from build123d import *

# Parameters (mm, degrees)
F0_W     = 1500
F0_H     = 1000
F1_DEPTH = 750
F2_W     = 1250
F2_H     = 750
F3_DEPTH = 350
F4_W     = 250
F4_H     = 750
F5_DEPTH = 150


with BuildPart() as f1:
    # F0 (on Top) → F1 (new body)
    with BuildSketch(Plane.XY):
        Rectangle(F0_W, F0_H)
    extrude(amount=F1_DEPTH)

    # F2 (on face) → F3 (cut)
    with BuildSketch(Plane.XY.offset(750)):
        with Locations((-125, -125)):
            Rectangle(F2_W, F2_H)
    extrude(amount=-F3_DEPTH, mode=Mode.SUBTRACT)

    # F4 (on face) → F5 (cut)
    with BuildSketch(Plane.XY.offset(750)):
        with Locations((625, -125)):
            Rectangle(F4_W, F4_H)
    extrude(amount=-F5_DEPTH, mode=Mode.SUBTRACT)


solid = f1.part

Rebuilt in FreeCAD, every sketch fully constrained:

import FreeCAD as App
import Part
import Sketcher
Q = App.Units.Quantity

doc = App.newDocument("Part")
body = doc.addObject("PartDesign::Body", "Body")

# Sketch on XY plane
sketch1 = body.newObject("Sketcher::SketchObject", "Sketch")
sketch1.AttachmentSupport = (doc.getObject("XY_Plane"), [""])
sketch1.MapMode = "FlatFace"
sketch1.addGeometry(Part.LineSegment(App.Vector(-750, 500, 0), App.Vector(-750, -500, 0)), False)
sketch1.addGeometry(Part.LineSegment(App.Vector(-750, -500, 0), App.Vector(750, -500, 0)), False)
sketch1.addGeometry(Part.LineSegment(App.Vector(750, -500, 0), App.Vector(750, 500, 0)), False)
sketch1.addGeometry(Part.LineSegment(App.Vector(750, 500, 0), App.Vector(-750, 500, 0)), False)
sketch1.addConstraint(Sketcher.Constraint("Coincident", 0, 2, 1, 1))
sketch1.addConstraint(Sketcher.Constraint("Coincident", 1, 2, 2, 1))
sketch1.addConstraint(Sketcher.Constraint("Coincident", 2, 2, 3, 1))
sketch1.addConstraint(Sketcher.Constraint("Coincident", 3, 2, 0, 1))
sketch1.addConstraint(Sketcher.Constraint("Vertical", 0))
sketch1.addConstraint(Sketcher.Constraint("Horizontal", 1))
sketch1.addConstraint(Sketcher.Constraint("Vertical", 2))
sketch1.addConstraint(Sketcher.Constraint("Horizontal", 3))
sketch1.addConstraint(Sketcher.Constraint("Symmetric", 0, 2, 2, 2, -1, 1))
sketch1.addConstraint(Sketcher.Constraint("DistanceX", 1, 1, 1, 2, Q("1500 mm")))
sketch1.addConstraint(Sketcher.Constraint("DistanceY", 0, 2, 0, 1, Q("1000 mm")))
pad1 = body.newObject("PartDesign::Pad", "Pad")
pad1.Profile = sketch1
pad1.Length = 750

# Sketch on XY plane
sketch2 = body.newObject("Sketcher::SketchObject", "Sketch001")
sketch2.AttachmentSupport = (doc.getObject("XY_Plane"), [""])
sketch2.MapMode = "FlatFace"
sketch2.AttachmentOffset = App.Placement(App.Vector(0, 0, 750), App.Rotation())
sketch2.addGeometry(Part.LineSegment(App.Vector(-750, 250, 0), App.Vector(-750, -500, 0)), False)
sketch2.addGeometry(Part.LineSegment(App.Vector(-750, -500, 0), App.Vector(500, -500, 0)), False)
sketch2.addGeometry(Part.LineSegment(App.Vector(500, -500, 0), App.Vector(500, 250, 0)), False)
sketch2.addGeometry(Part.LineSegment(App.Vector(500, 250, 0), App.Vector(-750, 250, 0)), False)
sketch2.addConstraint(Sketcher.Constraint("Coincident", 0, 2, 1, 1))
sketch2.addConstraint(Sketcher.Constraint("Coincident", 1, 2, 2, 1))
sketch2.addConstraint(Sketcher.Constraint("Coincident", 2, 2, 3, 1))
sketch2.addConstraint(Sketcher.Constraint("Coincident", 3, 2, 0, 1))
sketch2.addConstraint(Sketcher.Constraint("Vertical", 0))
sketch2.addConstraint(Sketcher.Constraint("Horizontal", 1))
sketch2.addConstraint(Sketcher.Constraint("Vertical", 2))
sketch2.addConstraint(Sketcher.Constraint("Horizontal", 3))
sketch2.addConstraint(Sketcher.Constraint("DistanceX", 1, 1, 1, 2, Q("1250 mm")))
sketch2.addConstraint(Sketcher.Constraint("DistanceY", 0, 2, 0, 1, Q("750 mm")))
sketch2.addConstraint(Sketcher.Constraint("DistanceX", 0, 2, -1, 1, Q("750 mm")))
sketch2.addConstraint(Sketcher.Constraint("DistanceY", 0, 2, -1, 1, Q("500 mm")))
pocket1 = body.newObject("PartDesign::Pocket", "Pocket")
pocket1.Profile = sketch2
pocket1.Length = 350

# Sketch on XY plane
sketch3 = body.newObject("Sketcher::SketchObject", "Sketch002")
sketch3.AttachmentSupport = (doc.getObject("XY_Plane"), [""])
sketch3.MapMode = "FlatFace"
sketch3.AttachmentOffset = App.Placement(App.Vector(0, 0, 750), App.Rotation())
sketch3.addGeometry(Part.LineSegment(App.Vector(500, 250, 0), App.Vector(500, -500, 0)), False)
sketch3.addGeometry(Part.LineSegment(App.Vector(500, -500, 0), App.Vector(750, -500, 0)), False)
sketch3.addGeometry(Part.LineSegment(App.Vector(750, -500, 0), App.Vector(750, 250, 0)), False)
sketch3.addGeometry(Part.LineSegment(App.Vector(750, 250, 0), App.Vector(500, 250, 0)), False)
sketch3.addConstraint(Sketcher.Constraint("Coincident", 0, 2, 1, 1))
sketch3.addConstraint(Sketcher.Constraint("Coincident", 1, 2, 2, 1))
sketch3.addConstraint(Sketcher.Constraint("Coincident", 2, 2, 3, 1))
sketch3.addConstraint(Sketcher.Constraint("Coincident", 3, 2, 0, 1))
sketch3.addConstraint(Sketcher.Constraint("Vertical", 0))
sketch3.addConstraint(Sketcher.Constraint("Horizontal", 1))
sketch3.addConstraint(Sketcher.Constraint("Vertical", 2))
sketch3.addConstraint(Sketcher.Constraint("Horizontal", 3))
sketch3.addConstraint(Sketcher.Constraint("DistanceX", 1, 1, 1, 2, Q("250 mm")))
sketch3.addConstraint(Sketcher.Constraint("DistanceY", 0, 2, 0, 1, Q("750 mm")))
sketch3.addConstraint(Sketcher.Constraint("DistanceX", -1, 1, 0, 2, Q("500 mm")))
sketch3.addConstraint(Sketcher.Constraint("DistanceY", 0, 2, -1, 1, Q("500 mm")))
pocket2 = body.newObject("PartDesign::Pocket", "Pocket001")
pocket2.Profile = sketch3
pocket2.Length = 150

doc.recompute()
